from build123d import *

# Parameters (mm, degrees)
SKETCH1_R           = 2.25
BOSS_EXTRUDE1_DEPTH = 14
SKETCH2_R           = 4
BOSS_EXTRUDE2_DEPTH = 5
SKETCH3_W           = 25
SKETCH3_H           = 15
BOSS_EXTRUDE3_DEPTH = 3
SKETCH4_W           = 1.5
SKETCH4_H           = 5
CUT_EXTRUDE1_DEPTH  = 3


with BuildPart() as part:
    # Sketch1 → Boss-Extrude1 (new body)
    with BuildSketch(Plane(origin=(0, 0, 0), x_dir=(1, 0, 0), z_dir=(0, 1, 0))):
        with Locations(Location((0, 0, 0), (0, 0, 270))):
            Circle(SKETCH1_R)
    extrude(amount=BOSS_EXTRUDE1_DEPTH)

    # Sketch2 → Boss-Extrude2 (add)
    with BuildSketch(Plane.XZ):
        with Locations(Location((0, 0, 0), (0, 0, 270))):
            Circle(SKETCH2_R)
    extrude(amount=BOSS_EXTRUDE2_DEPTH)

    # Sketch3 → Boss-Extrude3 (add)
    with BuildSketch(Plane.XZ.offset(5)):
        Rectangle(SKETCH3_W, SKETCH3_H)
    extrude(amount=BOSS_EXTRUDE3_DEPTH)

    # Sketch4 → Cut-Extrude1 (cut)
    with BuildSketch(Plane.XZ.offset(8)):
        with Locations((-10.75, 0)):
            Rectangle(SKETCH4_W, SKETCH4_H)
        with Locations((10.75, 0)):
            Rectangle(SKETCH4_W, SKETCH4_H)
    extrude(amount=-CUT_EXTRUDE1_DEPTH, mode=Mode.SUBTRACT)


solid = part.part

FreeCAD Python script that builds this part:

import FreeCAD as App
import Part
import Sketcher
from FreeCAD import Vector


def add_polygon(sketch, points):
    """Adds a closed chain of lines whose ends are joined by coincident constraints."""
    first, n = sketch.GeometryCount, len(points)
    for a, b in zip(points, points[1:] + points[:1]):
        sketch.addGeometry(Part.LineSegment(App.Vector(*a, 0), App.Vector(*b, 0)), False)
    for i in range(n):
        sketch.addConstraint(Sketcher.Constraint("Coincident", first + i, 2, first + (i + 1) % n, 1))

doc = App.newDocument("Part")
body = doc.addObject("PartDesign::Body", "Body")

# Sketch on XZ plane
sketch1 = doc.addObject("Sketcher::SketchObject", "Sketch")
body.addObject(sketch1)
sketch1.AttachmentSupport = (doc.XZ_Plane, [""])
sketch1.MapMode = "FlatFace"
sketch1.addGeometry(Part.Circle(Vector(0, 0, 0), Vector(0, 0, 1), 2.25), False)
sketch1.addConstraint(Sketcher.Constraint("Coincident", 0, 3, -1, 1))
sketch1.addConstraint(Sketcher.Constraint("Diameter", 0, 4.5))
pad1 = doc.addObject("PartDesign::Pad", "Pad")
body.addObject(pad1)
pad1.Profile = sketch1
pad1.Length = 14
pad1.Reversed = True

# Sketch on XZ plane
sketch2 = doc.addObject("Sketcher::SketchObject", "Sketch001")
body.addObject(sketch2)
sketch2.AttachmentSupport = (doc.XZ_Plane, [""])
sketch2.MapMode = "FlatFace"
sketch2.addGeometry(Part.Circle(Vector(0, 0, 0), Vector(0, 0, 1), 4), False)
sketch2.addConstraint(Sketcher.Constraint("Coincident", 0, 3, -1, 1))
sketch2.addConstraint(Sketcher.Constraint("Diameter", 0, 8.0))
pad2 = doc.addObject("PartDesign::Pad", "Pad001")
body.addObject(pad2)
pad2.Profile = sketch2
pad2.Length = 5

# Sketch on XZ plane
sketch3 = doc.addObject("Sketcher::SketchObject", "Sketch002")
body.addObject(sketch3)
sketch3.AttachmentSupport = (doc.XZ_Plane, [""])
sketch3.MapMode = "FlatFace"
sketch3.AttachmentOffset = App.Placement(Vector(0, 0, 5), App.Rotation())
add_polygon(sketch3, [(-12.5, 7.5), (-12.5, -7.5), (12.5, -7.5), (12.5, 7.5)])  # lines 0-3
sketch3.addConstraint(Sketcher.Constraint("Vertical", 0))
sketch3.addConstraint(Sketcher.Constraint("Horizontal", 1))
sketch3.addConstraint(Sketcher.Constraint("Vertical", 2))
sketch3.addConstraint(Sketcher.Constraint("Horizontal", 3))
sketch3.addConstraint(Sketcher.Constraint("Symmetric", 0, 2, 2, 2, -1, 1))
sketch3.addConstraint(Sketcher.Constraint("DistanceX", 1, 1, 1, 2, 25.0))
sketch3.addConstraint(Sketcher.Constraint("DistanceY", 0, 2, 0, 1, 15.0))
pad3 = doc.addObject("PartDesign::Pad", "Pad002")
body.addObject(pad3)
pad3.Profile = sketch3
pad3.Length = 3

# Sketch on XZ plane
sketch4 = doc.addObject("Sketcher::SketchObject", "Sketch003")
body.addObject(sketch4)
sketch4.AttachmentSupport = (doc.XZ_Plane, [""])
sketch4.MapMode = "FlatFace"
sketch4.AttachmentOffset = App.Placement(Vector(0, 0, 8), App.Rotation())
add_polygon(sketch4, [(-11.5, 2.5), (-11.5, -2.5), (-10, -2.5), (-10, 2.5)])  # lines 0-3
add_polygon(sketch4, [(10, 2.5), (10, -2.5), (11.5, -2.5), (11.5, 2.5)])  # lines 4-7
sketch4.addConstraint(Sketcher.Constraint("Vertical", 0))
sketch4.addConstraint(Sketcher.Constraint("Horizontal", 1))
sketch4.addConstraint(Sketcher.Constraint("Vertical", 2))
sketch4.addConstraint(Sketcher.Constraint("Horizontal", 3))
sketch4.addConstraint(Sketcher.Constraint("Vertical", 4))
sketch4.addConstraint(Sketcher.Constraint("Horizontal", 5))
sketch4.addConstraint(Sketcher.Constraint("Vertical", 6))
sketch4.addConstraint(Sketcher.Constraint("Horizontal", 7))
sketch4.addConstraint(Sketcher.Constraint("Symmetric", 2, 2, 4, 2, -1, 1))
sketch4.addConstraint(Sketcher.Constraint("Symmetric", 0, 2, 6, 2, -1, 1))
sketch4.addConstraint(Sketcher.Constraint("Horizontal", 1, 2, 4, 2))
sketch4.addConstraint(Sketcher.Constraint("DistanceY", 0, 2, 0, 1, 5.0))
sketch4.addConstraint(Sketcher.Constraint("DistanceX", 1, 1, 1, 2, 1.5))
sketch4.addConstraint(Sketcher.Constraint("DistanceX", 1, 2, -1, 1, 10.0))
pocket1 = doc.addObject("PartDesign::Pocket", "Pocket")
body.addObject(pocket1)
pocket1.Profile = sketch4
pocket1.Length = 3

doc.recompute()
